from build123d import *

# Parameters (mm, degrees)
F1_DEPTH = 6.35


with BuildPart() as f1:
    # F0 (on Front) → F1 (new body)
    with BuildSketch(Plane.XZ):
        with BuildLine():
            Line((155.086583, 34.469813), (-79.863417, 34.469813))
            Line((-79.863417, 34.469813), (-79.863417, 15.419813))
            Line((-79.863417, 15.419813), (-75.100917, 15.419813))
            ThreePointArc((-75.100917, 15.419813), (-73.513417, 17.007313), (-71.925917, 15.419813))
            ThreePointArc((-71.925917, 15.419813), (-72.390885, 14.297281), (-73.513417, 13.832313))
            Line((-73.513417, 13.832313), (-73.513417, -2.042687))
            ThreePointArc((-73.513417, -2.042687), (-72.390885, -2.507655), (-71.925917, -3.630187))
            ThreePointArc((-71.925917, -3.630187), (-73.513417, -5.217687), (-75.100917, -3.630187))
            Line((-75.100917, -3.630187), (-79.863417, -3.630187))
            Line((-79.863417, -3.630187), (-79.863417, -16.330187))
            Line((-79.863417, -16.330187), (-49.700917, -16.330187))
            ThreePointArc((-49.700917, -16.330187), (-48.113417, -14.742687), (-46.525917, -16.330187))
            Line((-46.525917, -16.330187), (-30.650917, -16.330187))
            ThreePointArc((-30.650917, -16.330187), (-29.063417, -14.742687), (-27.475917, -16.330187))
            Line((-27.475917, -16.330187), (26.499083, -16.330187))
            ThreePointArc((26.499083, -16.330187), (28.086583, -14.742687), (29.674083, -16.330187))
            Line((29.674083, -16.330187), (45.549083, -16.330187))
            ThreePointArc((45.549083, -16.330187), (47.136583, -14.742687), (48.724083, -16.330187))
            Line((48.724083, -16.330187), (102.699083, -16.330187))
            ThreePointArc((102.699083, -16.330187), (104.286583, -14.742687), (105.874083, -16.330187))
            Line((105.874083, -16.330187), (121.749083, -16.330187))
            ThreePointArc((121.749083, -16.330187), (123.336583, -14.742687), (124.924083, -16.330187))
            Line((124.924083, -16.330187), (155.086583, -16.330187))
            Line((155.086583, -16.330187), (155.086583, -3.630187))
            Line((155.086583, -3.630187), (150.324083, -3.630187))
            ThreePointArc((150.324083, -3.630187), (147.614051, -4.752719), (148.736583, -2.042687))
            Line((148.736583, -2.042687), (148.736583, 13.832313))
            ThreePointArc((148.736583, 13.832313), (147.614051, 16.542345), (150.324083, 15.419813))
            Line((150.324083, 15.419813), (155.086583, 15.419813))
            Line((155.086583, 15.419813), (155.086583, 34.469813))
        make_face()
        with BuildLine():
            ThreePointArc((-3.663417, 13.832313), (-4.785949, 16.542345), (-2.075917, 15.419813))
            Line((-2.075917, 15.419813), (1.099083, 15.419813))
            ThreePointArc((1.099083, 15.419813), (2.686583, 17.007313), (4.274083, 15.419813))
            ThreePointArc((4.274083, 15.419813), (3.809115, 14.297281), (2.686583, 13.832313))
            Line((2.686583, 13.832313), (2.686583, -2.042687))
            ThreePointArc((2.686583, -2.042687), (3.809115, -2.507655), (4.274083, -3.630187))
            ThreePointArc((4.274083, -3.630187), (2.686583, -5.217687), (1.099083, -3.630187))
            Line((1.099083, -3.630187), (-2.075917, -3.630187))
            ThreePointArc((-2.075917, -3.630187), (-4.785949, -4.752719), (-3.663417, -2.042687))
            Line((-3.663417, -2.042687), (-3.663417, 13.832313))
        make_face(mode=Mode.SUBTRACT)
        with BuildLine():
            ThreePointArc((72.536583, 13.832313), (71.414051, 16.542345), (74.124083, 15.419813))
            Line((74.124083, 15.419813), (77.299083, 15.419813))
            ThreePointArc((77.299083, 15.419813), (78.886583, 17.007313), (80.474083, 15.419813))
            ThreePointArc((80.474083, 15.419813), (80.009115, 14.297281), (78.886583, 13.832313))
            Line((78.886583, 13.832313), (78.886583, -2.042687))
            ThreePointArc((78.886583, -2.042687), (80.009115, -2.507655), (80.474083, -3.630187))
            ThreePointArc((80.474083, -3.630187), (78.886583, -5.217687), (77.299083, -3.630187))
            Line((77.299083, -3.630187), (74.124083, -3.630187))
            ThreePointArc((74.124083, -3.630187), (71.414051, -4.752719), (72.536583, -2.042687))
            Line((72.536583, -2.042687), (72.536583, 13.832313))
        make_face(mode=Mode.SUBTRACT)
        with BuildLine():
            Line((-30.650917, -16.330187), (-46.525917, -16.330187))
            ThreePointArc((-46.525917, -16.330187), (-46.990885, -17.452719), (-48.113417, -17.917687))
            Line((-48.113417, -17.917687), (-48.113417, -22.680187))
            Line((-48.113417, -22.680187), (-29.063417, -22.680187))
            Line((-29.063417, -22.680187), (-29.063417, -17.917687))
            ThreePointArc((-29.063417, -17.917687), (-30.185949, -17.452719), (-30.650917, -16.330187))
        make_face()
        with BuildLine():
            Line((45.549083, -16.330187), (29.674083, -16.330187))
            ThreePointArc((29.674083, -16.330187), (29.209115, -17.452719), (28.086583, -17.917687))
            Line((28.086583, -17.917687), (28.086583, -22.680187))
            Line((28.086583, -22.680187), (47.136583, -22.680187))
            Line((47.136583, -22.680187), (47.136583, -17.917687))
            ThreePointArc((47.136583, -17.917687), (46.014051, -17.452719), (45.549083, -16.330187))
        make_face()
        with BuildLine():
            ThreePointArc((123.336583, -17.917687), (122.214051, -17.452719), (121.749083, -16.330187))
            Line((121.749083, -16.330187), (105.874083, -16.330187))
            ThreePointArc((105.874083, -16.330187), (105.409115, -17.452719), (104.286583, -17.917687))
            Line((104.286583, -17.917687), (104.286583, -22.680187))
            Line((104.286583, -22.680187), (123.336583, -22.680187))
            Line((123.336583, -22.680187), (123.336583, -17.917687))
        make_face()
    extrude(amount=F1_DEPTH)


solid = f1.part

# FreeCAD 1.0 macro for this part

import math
import FreeCAD as App
import Part
import Sketcher
from FreeCAD import Vector
Q = App.Units.Quantity

doc = App.newDocument("Part")
body = doc.addObject("PartDesign::Body", "Body")

# Sketch on XZ plane
sketch1 = body.newObject("Sketcher::SketchObject", "Sketch")
sketch1.AttachmentSupport = (doc.getObject("XZ_Plane"), [""])
sketch1.MapMode = "FlatFace"
sketch1.addGeometry([
    Part.LineSegment(Vector(155.1, 34.5, 0), Vector(-79.9, 34.5, 0)),  # 0
    Part.LineSegment(Vector(-79.9, 34.5, 0), Vector(-79.9, 15.4, 0)),  # 1
    Part.LineSegment(Vector(-79.9, 15.4, 0), Vector(-75.1, 15.4, 0)),  # 2
    Part.ArcOfCircle(Part.Circle(Vector(-73.5, 15.4, 0), Vector(0, 0, 1), 1.6), math.radians(0), math.radians(180)),  # 3
    Part.ArcOfCircle(Part.Circle(Vector(-73.5, 15.4, 0), Vector(0, 0, 1), 1.6), math.radians(-90), math.radians(0)),  # 4
    Part.LineSegment(Vector(-73.5, 13.8, 0), Vector(-73.5, -2, 0)),  # 5
    Part.ArcOfCircle(Part.Circle(Vector(-73.5, -3.6, 0), Vector(0, 0, 1), 1.6), math.radians(0), math.radians(90)),  # 6
    Part.ArcOfCircle(Part.Circle(Vector(-73.5, -3.6, 0), Vector(0, 0, 1), 1.6), math.radians(180), math.radians(360)),  # 7
    Part.LineSegment(Vector(-75.1, -3.6, 0), Vector(-79.9, -3.6, 0)),  # 8
    Part.LineSegment(Vector(-79.9, -3.6, 0), Vector(-79.9, -16.3, 0)),  # 9
    Part.LineSegment(Vector(-79.9, -16.3, 0), Vector(-49.7, -16.3, 0)),  # 10
    Part.ArcOfCircle(Part.Circle(Vector(-48.1, -16.3, 0), Vector(0, 0, 1), 1.6), math.radians(0), math.radians(180)),  # 11
    Part.ArcOfCircle(Part.Circle(Vector(-48.1, -16.3, 0), Vector(0, 0, 1), 1.6), math.radians(-90), math.radians(0)),  # 12
    Part.LineSegment(Vector(-48.1, -17.9, 0), Vector(-48.1, -22.7, 0)),  # 13
    Part.LineSegment(Vector(-48.1, -22.7, 0), Vector(-29.1, -22.7, 0)),  # 14
    Part.LineSegment(Vector(-29.1, -22.7, 0), Vector(-29.1, -17.9, 0)),  # 15
    Part.ArcOfCircle(Part.Circle(Vector(-29.1, -16.3, 0), Vector(0, 0, 1), 1.6), math.radians(-180), math.radians(-90)),  # 16
    Part.ArcOfCircle(Part.Circle(Vector(-29.1, -16.3, 0), Vector(0, 0, 1), 1.6), math.radians(0), math.radians(180)),  # 17
    Part.LineSegment(Vector(-27.5, -16.3, 0), Vector(26.5, -16.3, 0)),  # 18
    Part.ArcOfCircle(Part.Circle(Vector(28.1, -16.3, 0), Vector(0, 0, 1), 1.6), math.radians(0), math.radians(180)),  # 19
    Part.ArcOfCircle(Part.Circle(Vector(28.1, -16.3, 0), Vector(0, 0, 1), 1.6), math.radians(-90), math.radians(0)),  # 20
    Part.LineSegment(Vector(28.1, -17.9, 0), Vector(28.1, -22.7, 0)),  # 21
    Part.LineSegment(Vector(28.1, -22.7, 0), Vector(47.1, -22.7, 0)),  # 22
    Part.LineSegment(Vector(47.1, -22.7, 0), Vector(47.1, -17.9, 0)),  # 23
    Part.ArcOfCircle(Part.Circle(Vector(47.1, -16.3, 0), Vector(0, 0, 1), 1.6), math.radians(-180), math.radians(-90)),  # 24
    Part.ArcOfCircle(Part.Circle(Vector(47.1, -16.3, 0), Vector(0, 0, 1), 1.6), math.radians(0), math.radians(180)),  # 25
    Part.LineSegment(Vector(48.7, -16.3, 0), Vector(102.7, -16.3, 0)),  # 26
    Part.ArcOfCircle(Part.Circle(Vector(104.3, -16.3, 0), Vector(0, 0, 1), 1.6), math.radians(0), math.radians(180)),  # 27
    Part.ArcOfCircle(Part.Circle(Vector(104.3, -16.3, 0), Vector(0, 0, 1), 1.6), math.radians(-90), math.radians(0)),  # 28
    Part.LineSegment(Vector(104.3, -17.9, 0), Vector(104.3, -22.7, 0)),  # 29
    Part.LineSegment(Vector(104.3, -22.7, 0), Vector(123.3, -22.7, 0)),  # 30
    Part.LineSegment(Vector(123.3, -22.7, 0), Vector(123.3, -17.9, 0)),  # 31
    Part.ArcOfCircle(Part.Circle(Vector(123.3, -16.3, 0), Vector(0, 0, 1), 1.6), math.radians(-180), math.radians(-90)),  # 32
    Part.ArcOfCircle(Part.Circle(Vector(123.3, -16.3, 0), Vector(0, 0, 1), 1.6), math.radians(0), math.radians(180)),  # 33
    Part.LineSegment(Vector(124.9, -16.3, 0), Vector(155.1, -16.3, 0)),  # 34
    Part.LineSegment(Vector(155.1, -16.3, 0), Vector(155.1, -3.6, 0)),  # 35
    Part.LineSegment(Vector(155.1, -3.6, 0), Vector(150.3, -3.6, 0)),  # 36
    Part.ArcOfCircle(Part.Circle(Vector(148.7, -3.6, 0), Vector(0, 0, 1), 1.6), math.radians(90), math.radians(360)),  # 37
    Part.LineSegment(Vector(148.7, -2, 0), Vector(148.7, 13.8, 0)),  # 38
    Part.ArcOfCircle(Part.Circle(Vector(148.7, 15.4, 0), Vector(0, 0, 1), 1.6), math.radians(0), math.radians(270)),  # 39
    Part.LineSegment(Vector(150.3, 15.4, 0), Vector(155.1, 15.4, 0)),  # 40
    Part.LineSegment(Vector(155.1, 15.4, 0), Vector(155.1, 34.5, 0)),  # 41
    Part.LineSegment(Vector(-3.7, -2, 0), Vector(-3.7, 13.8, 0)),  # 42
    Part.ArcOfCircle(Part.Circle(Vector(-3.7, 15.4, 0), Vector(0, 0, 1), 1.6), math.radians(0), math.radians(270)),  # 43
    Part.LineSegment(Vector(-2.1, 15.4, 0), Vector(1.1, 15.4, 0)),  # 44
    Part.ArcOfCircle(Part.Circle(Vector(2.7, 15.4, 0), Vector(0, 0, 1), 1.6), math.radians(0), math.radians(180)),  # 45
    Part.ArcOfCircle(Part.Circle(Vector(2.7, 15.4, 0), Vector(0, 0, 1), 1.6), math.radians(-90), math.radians(0)),  # 46
    Part.LineSegment(Vector(2.7, 13.8, 0), Vector(2.7, -2, 0)),  # 47
    Part.ArcOfCircle(Part.Circle(Vector(2.7, -3.6, 0), Vector(0, 0, 1), 1.6), math.radians(0), math.radians(90)),  # 48
    Part.ArcOfCircle(Part.Circle(Vector(2.7, -3.6, 0), Vector(0, 0, 1), 1.6), math.radians(180), math.radians(360)),  # 49
    Part.LineSegment(Vector(1.1, -3.6, 0), Vector(-2.1, -3.6, 0)),  # 50
    Part.ArcOfCircle(Part.Circle(Vector(-3.7, -3.6, 0), Vector(0, 0, 1), 1.6), math.radians(90), math.radians(360)),  # 51
    Part.LineSegment(Vector(72.5, -2, 0), Vector(72.5, 13.8, 0)),  # 52
    Part.ArcOfCircle(Part.Circle(Vector(72.5, 15.4, 0), Vector(0, 0, 1), 1.6), math.radians(0), math.radians(270)),  # 53
    Part.LineSegment(Vector(74.1, 15.4, 0), Vector(77.3, 15.4, 0)),  # 54
    Part.ArcOfCircle(Part.Circle(Vector(78.9, 15.4, 0), Vector(0, 0, 1), 1.6), math.radians(0), math.radians(180)),  # 55
    Part.ArcOfCircle(Part.Circle(Vector(78.9, 15.4, 0), Vector(0, 0, 1), 1.6), math.radians(-90), math.radians(0)),  # 56
    Part.LineSegment(Vector(78.9, 13.8, 0), Vector(78.9, -2, 0)),  # 57
    Part.ArcOfCircle(Part.Circle(Vector(78.9, -3.6, 0), Vector(0, 0, 1), 1.6), math.radians(0), math.radians(90)),  # 58
    Part.ArcOfCircle(Part.Circle(Vector(78.9, -3.6, 0), Vector(0, 0, 1), 1.6), math.radians(180), math.radians(360)),  # 59
    Part.LineSegment(Vector(77.3, -3.6, 0), Vector(74.1, -3.6, 0)),  # 60
    Part.ArcOfCircle(Part.Circle(Vector(72.5, -3.6, 0), Vector(0, 0, 1), 1.6), math.radians(90), math.radians(360)),  # 61
], False)
sketch1.addConstraint([
    Sketcher.Constraint("Coincident", 0, 2, 1, 1),
    Sketcher.Constraint("Coincident", 1, 2, 2, 1),
    Sketcher.Constraint("Coincident", 2, 2, 3, 2),
    Sketcher.Constraint("Tangent", 3, 1, 4, 2),
    Sketcher.Constraint("Coincident", 4, 1, 5, 1),
    Sketcher.Constraint("Coincident", 5, 2, 6, 2),
    Sketcher.Constraint("Tangent", 6, 1, 7, 2),
    Sketcher.Constraint("Coincident", 7, 1, 8, 1),
    Sketcher.Constraint("Coincident", 8, 2, 9, 1),
    Sketcher.Constraint("Coincident", 9, 2, 10, 1),
    Sketcher.Constraint("Coincident", 10, 2, 11, 2),
    Sketcher.Constraint("Tangent", 11, 1, 12, 2),
    Sketcher.Constraint("Coincident", 12, 1, 13, 1),
    Sketcher.Constraint("Coincident", 13, 2, 14, 1),
    Sketcher.Constraint("Coincident", 14, 2, 15, 1),
    Sketcher.Constraint("Coincident", 15, 2, 16, 2),
    Sketcher.Constraint("Tangent", 16, 1, 17, 2),
    Sketcher.Constraint("Coincident", 17, 1, 18, 1),
    Sketcher.Constraint("Coincident", 18, 2, 19, 2),
    Sketcher.Constraint("Tangent", 19, 1, 20, 2),
    Sketcher.Constraint("Coincident", 20, 1, 21, 1),
    Sketcher.Constraint("Coincident", 21, 2, 22, 1),
    Sketcher.Constraint("Coincident", 22, 2, 23, 1),
    Sketcher.Constraint("Coincident", 23, 2, 24, 2),
    Sketcher.Constraint("Tangent", 24, 1, 25, 2),
    Sketcher.Constraint("Coincident", 25, 1, 26, 1),
    Sketcher.Constraint("Coincident", 26, 2, 27, 2),
    Sketcher.Constraint("Tangent", 27, 1, 28, 2),
    Sketcher.Constraint("Coincident", 28, 1, 29, 1),
    Sketcher.Constraint("Coincident", 29, 2, 30, 1),
    Sketcher.Constraint("Coincident", 30, 2, 31, 1),
    Sketcher.Constraint("Coincident", 31, 2, 32, 2),
    Sketcher.Constraint("Tangent", 32, 1, 33, 2),
    Sketcher.Constraint("Coincident", 33, 1, 34, 1),
    Sketcher.Constraint("Coincident", 34, 2, 35, 1),
    Sketcher.Constraint("Coincident", 35, 2, 36, 1),
    Sketcher.Constraint("Coincident", 36, 2, 37, 2),
    Sketcher.Constraint("Coincident", 37, 1, 38, 1),
    Sketcher.Constraint("Coincident", 38, 2, 39, 2),
    Sketcher.Constraint("Coincident", 39, 1, 40, 1),
    Sketcher.Constraint("Coincident", 40, 2, 41, 1),
    Sketcher.Constraint("Coincident", 41, 2, 0, 1),
    Sketcher.Constraint("Coincident", 42, 2, 43, 2),
    Sketcher.Constraint("Coincident", 43, 1, 44, 1),
    Sketcher.Constraint("Coincident", 44, 2, 45, 2),
    Sketcher.Constraint("Tangent", 45, 1, 46, 2),
    Sketcher.Constraint("Coincident", 46, 1, 47, 1),
    Sketcher.Constraint("Coincident", 47, 2, 48, 2),
    Sketcher.Constraint("Tangent", 48, 1, 49, 2),
    Sketcher.Constraint("Coincident", 49, 1, 50, 1),
    Sketcher.Constraint("Coincident", 50, 2, 51, 2),
    Sketcher.Constraint("Coincident", 51, 1, 42, 1),
    Sketcher.Constraint("Coincident", 52, 2, 53, 2),
    Sketcher.Constraint("Coincident", 53, 1, 54, 1),
    Sketcher.Constraint("Coincident", 54, 2, 55, 2),
    Sketcher.Constraint("Tangent", 55, 1, 56, 2),
    Sketcher.Constraint("Coincident", 56, 1, 57, 1),
    Sketcher.Constraint("Coincident", 57, 2, 58, 2),
    Sketcher.Constraint("Tangent", 58, 1, 59, 2),
    Sketcher.Constraint("Coincident", 59, 1, 60, 1),
    Sketcher.Constraint("Coincident", 60, 2, 61, 2),
    Sketcher.Constraint("Coincident", 61, 1, 52, 1),
    Sketcher.Constraint("Horizontal", 0),
    Sketcher.Constraint("Vertical", 1),
    Sketcher.Constraint("Horizontal", 2),
    Sketcher.Constraint("Vertical", 5),
    Sketcher.Constraint("Horizontal", 8),
    Sketcher.Constraint("Vertical", 9),
    Sketcher.Constraint("Horizontal", 10),
    Sketcher.Constraint("Vertical", 13),
    Sketcher.Constraint("Horizontal", 14),
    Sketcher.Constraint("Vertical", 15),
    Sketcher.Constraint("Horizontal", 18),
    Sketcher.Constraint("Vertical", 21),
    Sketcher.Constraint("Horizontal", 22),
    Sketcher.Constraint("Vertical", 23),
    Sketcher.Constraint("Horizontal", 26),
    Sketcher.Constraint("Vertical", 29),
    Sketcher.Constraint("Horizontal", 30),
    Sketcher.Constraint("Vertical", 31),
    Sketcher.Constraint("Horizontal", 34),
    Sketcher.Constraint("Vertical", 35),
    Sketcher.Constraint("Horizontal", 36),
    Sketcher.Constraint("Vertical", 38),
    Sketcher.Constraint("Horizontal", 40),
    Sketcher.Constraint("Vertical", 41),
    Sketcher.Constraint("Vertical", 42),
    Sketcher.Constraint("Horizontal", 44),
    Sketcher.Constraint("Vertical", 47),
    Sketcher.Constraint("Horizontal", 50),
    Sketcher.Constraint("Vertical", 52),
    Sketcher.Constraint("Horizontal", 54),
    Sketcher.Constraint("Vertical", 57),
    Sketcher.Constraint("Horizontal", 60),
    Sketcher.Constraint("Equal", 3, 4),
    Sketcher.Constraint("Equal", 4, 6),
    Sketcher.Constraint("Equal", 6, 7),
    Sketcher.Constraint("Equal", 7, 11),
    Sketcher.Constraint("Equal", 11, 12),
    Sketcher.Constraint("Equal", 12, 16),
    Sketcher.Constraint("Equal", 16, 17),
    Sketcher.Constraint("Equal", 17, 19),
    Sketcher.Constraint("Equal", 19, 20),
    Sketcher.Constraint("Equal", 20, 24),
    Sketcher.Constraint("Equal", 24, 25),
    Sketcher.Constraint("Equal", 25, 27),
    Sketcher.Constraint("Equal", 27, 28),
    Sketcher.Constraint("Equal", 28, 32),
    Sketcher.Constraint("Equal", 32, 33),
    Sketcher.Constraint("Equal", 33, 37),
    Sketcher.Constraint("Equal", 37, 39),
    Sketcher.Constraint("Equal", 39, 43),
    Sketcher.Constraint("Equal", 43, 45),
    Sketcher.Constraint("Equal", 45, 46),
    Sketcher.Constraint("Equal", 46, 48),
    Sketcher.Constraint("Equal", 48, 49),
    Sketcher.Constraint("Equal", 49, 51),
    Sketcher.Constraint("Equal", 51, 53),
    Sketcher.Constraint("Equal", 53, 55),
    Sketcher.Constraint("Equal", 55, 56),
    Sketcher.Constraint("Equal", 56, 58),
    Sketcher.Constraint("Equal", 58, 59),
    Sketcher.Constraint("Equal", 59, 61),
    Sketcher.Constraint("Horizontal", 12, 3, 16, 3),
    Sketcher.Constraint("Horizontal", 17, 3, 19, 3),
    Sketcher.Constraint("Horizontal", 20, 3, 24, 3),
    Sketcher.Constraint("Horizontal", 25, 3, 27, 3),
    Sketcher.Constraint("Horizontal", 28, 3, 32, 3),
    Sketcher.Constraint("Horizontal", 7, 3, 37, 3),
    Sketcher.Constraint("Horizontal", 4, 3, 39, 3),
    Sketcher.Constraint("Horizontal", 39, 3, 43, 3),
    Sketcher.Constraint("Horizontal", 43, 3, 45, 3),
    Sketcher.Constraint("Horizontal", 37, 3, 48, 3),
    Sketcher.Constraint("Horizontal", 49, 3, 51, 3),
    Sketcher.Constraint("Horizontal", 46, 3, 53, 3),
    Sketcher.Constraint("Horizontal", 53, 3, 55, 3),
    Sketcher.Constraint("Horizontal", 51, 3, 58, 3),
    Sketcher.Constraint("Horizontal", 59, 3, 61, 3),
    Sketcher.Constraint("Horizontal", 56, 3, 1, 2),
    Sketcher.Constraint("Horizontal", 2, 2, 3, 1),
    Sketcher.Constraint("Horizontal", 61, 3, 6, 1),
    Sketcher.Constraint("Horizontal", 6, 1, 7, 1),
    Sketcher.Constraint("Horizontal", 33, 3, 9, 2),
    Sketcher.Constraint("Horizontal", 10, 2, 11, 1),
    Sketcher.Constraint("Horizontal", 11, 1, 16, 1),
    Sketcher.Constraint("Horizontal", 16, 1, 17, 1),
    Sketcher.Constraint("Horizontal", 18, 2, 19, 1),
    Sketcher.Constraint("Horizontal", 14, 2, 21, 2),
    Sketcher.Constraint("Horizontal", 19, 1, 24, 1),
    Sketcher.Constraint("Horizontal", 24, 1, 25, 1),
    Sketcher.Constraint("Horizontal", 26, 2, 27, 1),
    Sketcher.Constraint("Horizontal", 22, 2, 29, 2),
    Sketcher.Constraint("Horizontal", 27, 1, 32, 1),
    Sketcher.Constraint("Horizontal", 32, 1, 33, 1),
    Sketcher.Constraint("Horizontal", 8, 2, 35, 2),
    Sketcher.Constraint("Horizontal", 3, 1, 39, 1),
    Sketcher.Constraint("Horizontal", 40, 2, 43, 1),
    Sketcher.Constraint("Horizontal", 44, 2, 45, 1),
    Sketcher.Constraint("Horizontal", 36, 2, 48, 1),
    Sketcher.Constraint("Horizontal", 48, 1, 49, 1),
    Sketcher.Constraint("Horizontal", 45, 1, 53, 1),
    Sketcher.Constraint("Horizontal", 54, 2, 55, 1),
    Sketcher.Constraint("Horizontal", 50, 2, 58, 1),
    Sketcher.Constraint("Horizontal", 58, 1, 59, 1),
    Sketcher.Constraint("Vertical", 4, 3, 6, 3),
    Sketcher.Constraint("Vertical", 37, 3, 39, 3),
    Sketcher.Constraint("Vertical", 46, 3, 48, 3),
    Sketcher.Constraint("Vertical", 43, 3, 51, 3),
    Sketcher.Constraint("Vertical", 56, 3, 58, 3),
    Sketcher.Constraint("Vertical", 53, 3, 61, 3),
    Sketcher.Constraint("Vertical", 7, 3, 4, 1),
    Sketcher.Constraint("Vertical", 1, 2, 8, 2),
    Sketcher.Constraint("Vertical", 11, 3, 12, 1),
    Sketcher.Constraint("Vertical", 17, 3, 14, 2),
    Sketcher.Constraint("Vertical", 19, 3, 20, 1),
    Sketcher.Constraint("Vertical", 25, 3, 22, 2),
    Sketcher.Constraint("Vertical", 27, 3, 28, 1),
    Sketcher.Constraint("Vertical", 33, 3, 30, 2),
    Sketcher.Constraint("Vertical", 39, 3, 37, 1),
    Sketcher.Constraint("Vertical", 35, 2, 40, 2),
    Sketcher.Constraint("Vertical", 51, 3, 42, 2),
    Sketcher.Constraint("Vertical", 49, 3, 46, 1),
    Sketcher.Constraint("Vertical", 61, 3, 52, 2),
    Sketcher.Constraint("Vertical", 59, 3, 56, 1),
    Sketcher.Constraint("Equal", 14, 22),
    Sketcher.Constraint("Equal", 18, 26),
    Sketcher.Constraint("Equal", 22, 30),
    Sketcher.Constraint("Equal", 10, 34),
    Sketcher.Constraint("Equal", 8, 36),
    Sketcher.Constraint("Equal", 50, 54),
    Sketcher.Constraint("Equal", 30, 1),
    Sketcher.Constraint("Equal", 40, 13),
    Sketcher.Constraint("DistanceY", 9, 2, 9, 1, Q("0.5 in")),
    Sketcher.Constraint("Radius", 3, Q("0.0625 in")),
    Sketcher.Constraint("DistanceX", 0, 2, 0, 1, Q("9.25 in")),
    Sketcher.Constraint("DistanceX", 14, 1, 14, 2, Q("0.75 in")),
    Sketcher.Constraint("DistanceX", 2, 1, 2, 2, Q("0.1875 in")),
    Sketcher.Constraint("DistanceX", 10, 1, 10, 2, Q("1.1875 in")),
    Sketcher.Constraint("DistanceX", 44, 1, 44, 2, Q("0.125 in")),
    Sketcher.Constraint("DistanceY", 5, 2, 5, 1, Q("0.625 in")),
    Sketcher.Constraint("DistanceX", 3, 3, -1, 1, 73.513417),
    Sketcher.Constraint("DistanceY", -1, 1, 3, 3, 15.419813),
    Sketcher.Constraint("DistanceX", 43, 3, -1, 1, 3.663417),
    Sketcher.Constraint("DistanceX", -1, 1, 53, 3, 72.536583),
])
pad1 = body.newObject("PartDesign::Pad", "Pad")
pad1.Profile = sketch1
pad1.Length = Q("0.25 in")

doc.recompute()
